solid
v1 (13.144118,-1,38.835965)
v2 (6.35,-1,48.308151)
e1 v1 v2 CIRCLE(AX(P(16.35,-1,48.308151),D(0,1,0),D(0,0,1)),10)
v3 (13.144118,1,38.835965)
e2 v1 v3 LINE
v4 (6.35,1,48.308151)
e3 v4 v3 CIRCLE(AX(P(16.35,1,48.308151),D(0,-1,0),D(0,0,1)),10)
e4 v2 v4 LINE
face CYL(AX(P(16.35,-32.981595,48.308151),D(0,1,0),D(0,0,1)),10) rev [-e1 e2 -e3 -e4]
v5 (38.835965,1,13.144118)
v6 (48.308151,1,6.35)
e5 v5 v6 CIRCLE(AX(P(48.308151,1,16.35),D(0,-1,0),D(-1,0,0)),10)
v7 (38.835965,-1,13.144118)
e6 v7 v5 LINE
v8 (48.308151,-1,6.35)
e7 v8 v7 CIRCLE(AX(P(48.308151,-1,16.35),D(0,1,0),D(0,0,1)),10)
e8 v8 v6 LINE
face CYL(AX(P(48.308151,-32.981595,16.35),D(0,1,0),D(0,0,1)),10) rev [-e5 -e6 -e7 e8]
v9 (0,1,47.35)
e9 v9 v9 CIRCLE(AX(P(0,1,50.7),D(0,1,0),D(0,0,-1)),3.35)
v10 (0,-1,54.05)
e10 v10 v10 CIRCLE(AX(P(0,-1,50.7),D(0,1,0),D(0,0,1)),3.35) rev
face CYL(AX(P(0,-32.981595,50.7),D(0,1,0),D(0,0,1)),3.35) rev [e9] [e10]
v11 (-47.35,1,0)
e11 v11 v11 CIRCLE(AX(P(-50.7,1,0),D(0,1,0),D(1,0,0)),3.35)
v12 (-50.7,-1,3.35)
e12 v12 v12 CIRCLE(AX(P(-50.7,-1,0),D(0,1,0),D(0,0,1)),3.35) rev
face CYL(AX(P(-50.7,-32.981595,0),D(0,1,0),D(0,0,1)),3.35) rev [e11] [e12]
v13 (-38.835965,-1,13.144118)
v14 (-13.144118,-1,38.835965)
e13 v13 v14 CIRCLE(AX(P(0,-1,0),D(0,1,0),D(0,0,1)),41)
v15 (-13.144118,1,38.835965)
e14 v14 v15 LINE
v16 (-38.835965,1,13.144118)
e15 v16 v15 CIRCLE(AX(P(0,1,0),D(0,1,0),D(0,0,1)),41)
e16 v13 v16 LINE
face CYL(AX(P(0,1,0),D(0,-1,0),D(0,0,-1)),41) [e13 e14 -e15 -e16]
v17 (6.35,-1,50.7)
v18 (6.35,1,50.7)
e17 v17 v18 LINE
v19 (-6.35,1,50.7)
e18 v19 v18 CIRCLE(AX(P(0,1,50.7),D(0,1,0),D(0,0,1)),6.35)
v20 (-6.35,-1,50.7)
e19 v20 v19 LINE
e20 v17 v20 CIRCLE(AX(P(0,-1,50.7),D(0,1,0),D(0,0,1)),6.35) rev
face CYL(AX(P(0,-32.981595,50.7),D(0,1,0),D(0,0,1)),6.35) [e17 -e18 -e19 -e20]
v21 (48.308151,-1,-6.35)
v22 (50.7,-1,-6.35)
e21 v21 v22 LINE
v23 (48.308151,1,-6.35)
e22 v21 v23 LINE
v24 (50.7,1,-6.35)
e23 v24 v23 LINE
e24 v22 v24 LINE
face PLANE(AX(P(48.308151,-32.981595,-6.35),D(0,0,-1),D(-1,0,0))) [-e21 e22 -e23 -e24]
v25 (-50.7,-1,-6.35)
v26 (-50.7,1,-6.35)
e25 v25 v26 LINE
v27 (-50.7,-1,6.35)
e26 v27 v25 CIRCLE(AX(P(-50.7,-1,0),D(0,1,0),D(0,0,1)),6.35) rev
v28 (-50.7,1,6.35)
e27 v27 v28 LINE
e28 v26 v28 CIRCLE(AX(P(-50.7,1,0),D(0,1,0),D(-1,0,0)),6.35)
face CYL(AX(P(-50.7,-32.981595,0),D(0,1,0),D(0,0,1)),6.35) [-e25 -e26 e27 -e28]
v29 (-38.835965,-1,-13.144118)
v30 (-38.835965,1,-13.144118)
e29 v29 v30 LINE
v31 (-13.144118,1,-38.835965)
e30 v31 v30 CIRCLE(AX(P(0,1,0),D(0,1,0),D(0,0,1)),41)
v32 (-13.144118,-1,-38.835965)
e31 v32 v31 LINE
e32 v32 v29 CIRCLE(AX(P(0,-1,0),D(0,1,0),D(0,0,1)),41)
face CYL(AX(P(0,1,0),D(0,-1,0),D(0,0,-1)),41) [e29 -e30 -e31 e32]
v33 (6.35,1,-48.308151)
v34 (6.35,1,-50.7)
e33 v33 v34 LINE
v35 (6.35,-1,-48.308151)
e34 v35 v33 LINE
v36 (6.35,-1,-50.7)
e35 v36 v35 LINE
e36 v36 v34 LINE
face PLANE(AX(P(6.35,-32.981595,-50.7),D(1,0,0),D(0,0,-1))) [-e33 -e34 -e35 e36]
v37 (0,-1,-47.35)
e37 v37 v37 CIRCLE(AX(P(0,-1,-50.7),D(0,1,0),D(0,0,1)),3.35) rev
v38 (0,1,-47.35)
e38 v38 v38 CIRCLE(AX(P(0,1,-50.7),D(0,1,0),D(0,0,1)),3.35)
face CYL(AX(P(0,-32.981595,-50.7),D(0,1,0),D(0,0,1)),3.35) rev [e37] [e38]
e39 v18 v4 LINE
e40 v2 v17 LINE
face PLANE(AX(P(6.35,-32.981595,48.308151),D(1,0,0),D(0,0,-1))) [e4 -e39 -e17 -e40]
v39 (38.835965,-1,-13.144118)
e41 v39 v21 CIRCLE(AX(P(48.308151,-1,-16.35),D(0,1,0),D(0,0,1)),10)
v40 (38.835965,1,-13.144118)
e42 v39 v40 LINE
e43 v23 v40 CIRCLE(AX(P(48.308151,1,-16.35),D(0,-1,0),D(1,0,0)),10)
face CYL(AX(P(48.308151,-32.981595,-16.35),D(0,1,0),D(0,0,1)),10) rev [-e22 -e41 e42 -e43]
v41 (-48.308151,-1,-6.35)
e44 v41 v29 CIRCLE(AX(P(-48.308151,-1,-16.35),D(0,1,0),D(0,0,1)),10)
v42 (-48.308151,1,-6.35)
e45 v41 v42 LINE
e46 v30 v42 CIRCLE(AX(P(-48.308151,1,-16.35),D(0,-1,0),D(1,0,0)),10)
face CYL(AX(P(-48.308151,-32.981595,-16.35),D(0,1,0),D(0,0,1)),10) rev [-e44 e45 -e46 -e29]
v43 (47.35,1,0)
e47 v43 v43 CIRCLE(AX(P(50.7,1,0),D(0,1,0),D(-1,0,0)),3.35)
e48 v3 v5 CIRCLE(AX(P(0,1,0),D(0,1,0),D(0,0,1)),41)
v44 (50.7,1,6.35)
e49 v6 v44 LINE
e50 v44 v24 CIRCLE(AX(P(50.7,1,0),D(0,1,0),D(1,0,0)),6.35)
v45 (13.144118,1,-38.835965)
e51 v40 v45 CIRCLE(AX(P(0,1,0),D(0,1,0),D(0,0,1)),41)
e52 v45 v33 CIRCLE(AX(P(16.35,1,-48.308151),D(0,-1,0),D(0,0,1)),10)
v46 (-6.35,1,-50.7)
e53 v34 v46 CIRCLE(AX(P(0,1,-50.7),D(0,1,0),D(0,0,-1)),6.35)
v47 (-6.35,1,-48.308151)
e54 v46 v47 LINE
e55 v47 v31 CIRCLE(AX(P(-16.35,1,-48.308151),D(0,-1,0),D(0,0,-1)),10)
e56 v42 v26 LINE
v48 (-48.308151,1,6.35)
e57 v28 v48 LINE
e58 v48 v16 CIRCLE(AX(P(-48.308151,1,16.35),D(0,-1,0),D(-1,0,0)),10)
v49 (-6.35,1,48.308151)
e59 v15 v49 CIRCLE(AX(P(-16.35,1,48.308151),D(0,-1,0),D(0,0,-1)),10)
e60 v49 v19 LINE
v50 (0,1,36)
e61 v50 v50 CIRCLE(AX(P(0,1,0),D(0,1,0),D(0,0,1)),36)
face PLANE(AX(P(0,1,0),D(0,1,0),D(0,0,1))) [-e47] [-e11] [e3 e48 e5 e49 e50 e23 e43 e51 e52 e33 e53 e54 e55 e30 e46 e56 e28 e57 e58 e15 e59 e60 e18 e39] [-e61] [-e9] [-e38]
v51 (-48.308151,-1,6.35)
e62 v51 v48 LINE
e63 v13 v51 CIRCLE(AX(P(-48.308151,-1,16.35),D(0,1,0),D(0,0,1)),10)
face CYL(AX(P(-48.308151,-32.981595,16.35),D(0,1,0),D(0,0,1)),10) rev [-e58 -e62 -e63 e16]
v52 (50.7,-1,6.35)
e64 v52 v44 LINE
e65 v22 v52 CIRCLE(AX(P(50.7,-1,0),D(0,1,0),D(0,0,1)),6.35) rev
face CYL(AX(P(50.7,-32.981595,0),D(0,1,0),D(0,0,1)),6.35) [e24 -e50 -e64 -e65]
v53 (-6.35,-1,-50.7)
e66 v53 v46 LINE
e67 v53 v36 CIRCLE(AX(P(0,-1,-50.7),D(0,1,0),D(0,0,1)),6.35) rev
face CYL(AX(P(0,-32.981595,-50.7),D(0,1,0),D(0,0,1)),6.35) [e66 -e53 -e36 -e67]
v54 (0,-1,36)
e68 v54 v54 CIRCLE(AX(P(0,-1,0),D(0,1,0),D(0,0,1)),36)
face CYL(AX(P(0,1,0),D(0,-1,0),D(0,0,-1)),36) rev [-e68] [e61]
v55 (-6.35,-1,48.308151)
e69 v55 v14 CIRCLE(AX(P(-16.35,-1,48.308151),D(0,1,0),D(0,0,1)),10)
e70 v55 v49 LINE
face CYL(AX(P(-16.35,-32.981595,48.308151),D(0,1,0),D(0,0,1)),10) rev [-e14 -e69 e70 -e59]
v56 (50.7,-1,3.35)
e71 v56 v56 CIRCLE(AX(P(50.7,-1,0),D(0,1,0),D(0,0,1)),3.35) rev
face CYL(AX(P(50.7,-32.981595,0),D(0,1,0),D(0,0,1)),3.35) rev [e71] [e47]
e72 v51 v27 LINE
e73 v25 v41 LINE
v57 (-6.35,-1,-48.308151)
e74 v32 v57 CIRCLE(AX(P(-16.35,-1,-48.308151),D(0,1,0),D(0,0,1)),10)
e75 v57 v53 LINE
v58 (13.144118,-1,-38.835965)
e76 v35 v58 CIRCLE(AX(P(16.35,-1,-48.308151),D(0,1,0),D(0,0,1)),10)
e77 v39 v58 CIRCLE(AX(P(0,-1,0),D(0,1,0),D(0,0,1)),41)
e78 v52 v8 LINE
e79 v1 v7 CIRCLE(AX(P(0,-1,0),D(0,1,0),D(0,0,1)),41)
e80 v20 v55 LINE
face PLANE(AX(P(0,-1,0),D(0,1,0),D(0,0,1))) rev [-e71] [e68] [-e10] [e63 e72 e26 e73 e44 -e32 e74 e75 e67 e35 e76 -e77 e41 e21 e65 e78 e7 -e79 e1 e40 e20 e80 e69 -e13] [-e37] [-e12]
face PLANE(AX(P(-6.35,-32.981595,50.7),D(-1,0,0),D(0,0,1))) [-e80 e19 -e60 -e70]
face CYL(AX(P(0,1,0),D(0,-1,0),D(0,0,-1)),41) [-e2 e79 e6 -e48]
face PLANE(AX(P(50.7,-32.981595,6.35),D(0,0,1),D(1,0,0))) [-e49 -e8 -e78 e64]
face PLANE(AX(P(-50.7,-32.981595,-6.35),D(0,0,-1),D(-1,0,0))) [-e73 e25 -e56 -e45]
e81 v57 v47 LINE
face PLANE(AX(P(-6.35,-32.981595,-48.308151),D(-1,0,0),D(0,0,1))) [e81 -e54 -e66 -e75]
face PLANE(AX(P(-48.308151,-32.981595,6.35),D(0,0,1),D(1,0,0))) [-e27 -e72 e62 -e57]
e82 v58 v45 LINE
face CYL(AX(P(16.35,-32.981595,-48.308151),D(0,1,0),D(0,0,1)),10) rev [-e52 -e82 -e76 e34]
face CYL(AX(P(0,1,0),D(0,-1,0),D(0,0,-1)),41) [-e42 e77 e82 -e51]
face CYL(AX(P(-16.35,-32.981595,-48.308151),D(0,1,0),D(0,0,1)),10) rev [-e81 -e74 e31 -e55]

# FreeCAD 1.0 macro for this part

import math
import FreeCAD as App
import Part
import Sketcher

V = App.Vector

doc = App.newDocument("Part")
body = doc.addObject("PartDesign::Body", "Body")

sketch1 = body.newObject("Sketcher::SketchObject", "Sketch")
sketch1.AttachmentSupport = (doc.getObject("XZ_Plane"), [""])
sketch1.MapMode = "FlatFace"
sketch1.addGeometry([
    Part.Circle(V(0, 0, 0), V(0, 0, 1), 41),
    Part.Circle(V(0, 0, 0), V(0, 0, 1), 36),
], False)
sketch1.addConstraint([
    Sketcher.Constraint("Coincident", 0, 3, -1, 1),
    Sketcher.Constraint("Coincident", 1, 3, -1, 1),
    Sketcher.Constraint("Diameter", 0, 82.0),
    Sketcher.Constraint("Diameter", 1, 72.0),
])
pad1 = body.newObject("PartDesign::Pad", "Pad")
pad1.Profile = sketch1
pad1.Length = 2
pad1.Midplane = True

sketch2 = body.newObject("Sketcher::SketchObject", "Sketch001")
sketch2.AttachmentSupport = (doc.getObject("XZ_Plane"), [""])
sketch2.MapMode = "FlatFace"
sketch2.AttachmentOffset = App.Placement(V(0, 0, -1), App.Rotation())
sketch2.addGeometry([
    Part.LineSegment(V(-6.3, -50.7, 0), V(-6.3, -48.3, 0)),
    Part.ArcOfCircle(Part.Circle(V(-16.4, -48.3, 0), V(0, 0, 1), 10), math.radians(0), math.radians(71)),
    Part.ArcOfCircle(Part.Circle(V(0, 0, 0), V(0, 0, 1), 41), math.radians(-109), math.radians(-71)),
    Part.ArcOfCircle(Part.Circle(V(16.4, -48.3, 0), V(0, 0, 1), 10), math.radians(109), math.radians(180)),
    Part.LineSegment(V(6.3, -48.3, 0), V(6.3, -50.7, 0)),
    Part.ArcOfCircle(Part.Circle(V(0, -50.7, 0), V(0, 0, 1), 6.3), math.radians(180), math.radians(360)),
    Part.Circle(V(0, -50.7, 0), V(0, 0, 1), 3.4),
], False)
sketch2.addConstraint([
    Sketcher.Constraint("Tangent", 0, 2, 1, 1),
    Sketcher.Constraint("Tangent", 1, 2, 2, 1),
    Sketcher.Constraint("Tangent", 2, 2, 3, 1),
    Sketcher.Constraint("Tangent", 3, 2, 4, 1),
    Sketcher.Constraint("Tangent", 4, 2, 5, 2),
    Sketcher.Constraint("Tangent", 5, 1, 0, 1),
    Sketcher.Constraint("Vertical", 0),
    Sketcher.Constraint("Vertical", 4),
    Sketcher.Constraint("Coincident", 2, 3, -1, 1),
    Sketcher.Constraint("Coincident", 6, 3, 5, 3),
    Sketcher.Constraint("Equal", 1, 3),
    Sketcher.Constraint("PointOnObject", 5, 3, -2),
    Sketcher.Constraint("Radius", 1, 10.0),
    Sketcher.Constraint("Radius", 2, 41.0),
    Sketcher.Constraint("Diameter", 6, 6.7),
    Sketcher.Constraint("Radius", 5, 6.35),
    Sketcher.Constraint("DistanceY", 5, 3, -1, 1, 50.7),
])
pad2 = body.newObject("PartDesign::Pad", "Pad001")
pad2.Profile = sketch2
pad2.Length = 2
doc.recompute()

polarpattern = body.newObject("PartDesign::PolarPattern", "PolarPattern")
polarpattern.Originals = [pad2]
polarpattern.Axis = (doc.getObject("Y_Axis"), [""])
polarpattern.Angle = 360
polarpattern.Occurrences = 4
body.Tip = polarpattern

doc.recompute()
